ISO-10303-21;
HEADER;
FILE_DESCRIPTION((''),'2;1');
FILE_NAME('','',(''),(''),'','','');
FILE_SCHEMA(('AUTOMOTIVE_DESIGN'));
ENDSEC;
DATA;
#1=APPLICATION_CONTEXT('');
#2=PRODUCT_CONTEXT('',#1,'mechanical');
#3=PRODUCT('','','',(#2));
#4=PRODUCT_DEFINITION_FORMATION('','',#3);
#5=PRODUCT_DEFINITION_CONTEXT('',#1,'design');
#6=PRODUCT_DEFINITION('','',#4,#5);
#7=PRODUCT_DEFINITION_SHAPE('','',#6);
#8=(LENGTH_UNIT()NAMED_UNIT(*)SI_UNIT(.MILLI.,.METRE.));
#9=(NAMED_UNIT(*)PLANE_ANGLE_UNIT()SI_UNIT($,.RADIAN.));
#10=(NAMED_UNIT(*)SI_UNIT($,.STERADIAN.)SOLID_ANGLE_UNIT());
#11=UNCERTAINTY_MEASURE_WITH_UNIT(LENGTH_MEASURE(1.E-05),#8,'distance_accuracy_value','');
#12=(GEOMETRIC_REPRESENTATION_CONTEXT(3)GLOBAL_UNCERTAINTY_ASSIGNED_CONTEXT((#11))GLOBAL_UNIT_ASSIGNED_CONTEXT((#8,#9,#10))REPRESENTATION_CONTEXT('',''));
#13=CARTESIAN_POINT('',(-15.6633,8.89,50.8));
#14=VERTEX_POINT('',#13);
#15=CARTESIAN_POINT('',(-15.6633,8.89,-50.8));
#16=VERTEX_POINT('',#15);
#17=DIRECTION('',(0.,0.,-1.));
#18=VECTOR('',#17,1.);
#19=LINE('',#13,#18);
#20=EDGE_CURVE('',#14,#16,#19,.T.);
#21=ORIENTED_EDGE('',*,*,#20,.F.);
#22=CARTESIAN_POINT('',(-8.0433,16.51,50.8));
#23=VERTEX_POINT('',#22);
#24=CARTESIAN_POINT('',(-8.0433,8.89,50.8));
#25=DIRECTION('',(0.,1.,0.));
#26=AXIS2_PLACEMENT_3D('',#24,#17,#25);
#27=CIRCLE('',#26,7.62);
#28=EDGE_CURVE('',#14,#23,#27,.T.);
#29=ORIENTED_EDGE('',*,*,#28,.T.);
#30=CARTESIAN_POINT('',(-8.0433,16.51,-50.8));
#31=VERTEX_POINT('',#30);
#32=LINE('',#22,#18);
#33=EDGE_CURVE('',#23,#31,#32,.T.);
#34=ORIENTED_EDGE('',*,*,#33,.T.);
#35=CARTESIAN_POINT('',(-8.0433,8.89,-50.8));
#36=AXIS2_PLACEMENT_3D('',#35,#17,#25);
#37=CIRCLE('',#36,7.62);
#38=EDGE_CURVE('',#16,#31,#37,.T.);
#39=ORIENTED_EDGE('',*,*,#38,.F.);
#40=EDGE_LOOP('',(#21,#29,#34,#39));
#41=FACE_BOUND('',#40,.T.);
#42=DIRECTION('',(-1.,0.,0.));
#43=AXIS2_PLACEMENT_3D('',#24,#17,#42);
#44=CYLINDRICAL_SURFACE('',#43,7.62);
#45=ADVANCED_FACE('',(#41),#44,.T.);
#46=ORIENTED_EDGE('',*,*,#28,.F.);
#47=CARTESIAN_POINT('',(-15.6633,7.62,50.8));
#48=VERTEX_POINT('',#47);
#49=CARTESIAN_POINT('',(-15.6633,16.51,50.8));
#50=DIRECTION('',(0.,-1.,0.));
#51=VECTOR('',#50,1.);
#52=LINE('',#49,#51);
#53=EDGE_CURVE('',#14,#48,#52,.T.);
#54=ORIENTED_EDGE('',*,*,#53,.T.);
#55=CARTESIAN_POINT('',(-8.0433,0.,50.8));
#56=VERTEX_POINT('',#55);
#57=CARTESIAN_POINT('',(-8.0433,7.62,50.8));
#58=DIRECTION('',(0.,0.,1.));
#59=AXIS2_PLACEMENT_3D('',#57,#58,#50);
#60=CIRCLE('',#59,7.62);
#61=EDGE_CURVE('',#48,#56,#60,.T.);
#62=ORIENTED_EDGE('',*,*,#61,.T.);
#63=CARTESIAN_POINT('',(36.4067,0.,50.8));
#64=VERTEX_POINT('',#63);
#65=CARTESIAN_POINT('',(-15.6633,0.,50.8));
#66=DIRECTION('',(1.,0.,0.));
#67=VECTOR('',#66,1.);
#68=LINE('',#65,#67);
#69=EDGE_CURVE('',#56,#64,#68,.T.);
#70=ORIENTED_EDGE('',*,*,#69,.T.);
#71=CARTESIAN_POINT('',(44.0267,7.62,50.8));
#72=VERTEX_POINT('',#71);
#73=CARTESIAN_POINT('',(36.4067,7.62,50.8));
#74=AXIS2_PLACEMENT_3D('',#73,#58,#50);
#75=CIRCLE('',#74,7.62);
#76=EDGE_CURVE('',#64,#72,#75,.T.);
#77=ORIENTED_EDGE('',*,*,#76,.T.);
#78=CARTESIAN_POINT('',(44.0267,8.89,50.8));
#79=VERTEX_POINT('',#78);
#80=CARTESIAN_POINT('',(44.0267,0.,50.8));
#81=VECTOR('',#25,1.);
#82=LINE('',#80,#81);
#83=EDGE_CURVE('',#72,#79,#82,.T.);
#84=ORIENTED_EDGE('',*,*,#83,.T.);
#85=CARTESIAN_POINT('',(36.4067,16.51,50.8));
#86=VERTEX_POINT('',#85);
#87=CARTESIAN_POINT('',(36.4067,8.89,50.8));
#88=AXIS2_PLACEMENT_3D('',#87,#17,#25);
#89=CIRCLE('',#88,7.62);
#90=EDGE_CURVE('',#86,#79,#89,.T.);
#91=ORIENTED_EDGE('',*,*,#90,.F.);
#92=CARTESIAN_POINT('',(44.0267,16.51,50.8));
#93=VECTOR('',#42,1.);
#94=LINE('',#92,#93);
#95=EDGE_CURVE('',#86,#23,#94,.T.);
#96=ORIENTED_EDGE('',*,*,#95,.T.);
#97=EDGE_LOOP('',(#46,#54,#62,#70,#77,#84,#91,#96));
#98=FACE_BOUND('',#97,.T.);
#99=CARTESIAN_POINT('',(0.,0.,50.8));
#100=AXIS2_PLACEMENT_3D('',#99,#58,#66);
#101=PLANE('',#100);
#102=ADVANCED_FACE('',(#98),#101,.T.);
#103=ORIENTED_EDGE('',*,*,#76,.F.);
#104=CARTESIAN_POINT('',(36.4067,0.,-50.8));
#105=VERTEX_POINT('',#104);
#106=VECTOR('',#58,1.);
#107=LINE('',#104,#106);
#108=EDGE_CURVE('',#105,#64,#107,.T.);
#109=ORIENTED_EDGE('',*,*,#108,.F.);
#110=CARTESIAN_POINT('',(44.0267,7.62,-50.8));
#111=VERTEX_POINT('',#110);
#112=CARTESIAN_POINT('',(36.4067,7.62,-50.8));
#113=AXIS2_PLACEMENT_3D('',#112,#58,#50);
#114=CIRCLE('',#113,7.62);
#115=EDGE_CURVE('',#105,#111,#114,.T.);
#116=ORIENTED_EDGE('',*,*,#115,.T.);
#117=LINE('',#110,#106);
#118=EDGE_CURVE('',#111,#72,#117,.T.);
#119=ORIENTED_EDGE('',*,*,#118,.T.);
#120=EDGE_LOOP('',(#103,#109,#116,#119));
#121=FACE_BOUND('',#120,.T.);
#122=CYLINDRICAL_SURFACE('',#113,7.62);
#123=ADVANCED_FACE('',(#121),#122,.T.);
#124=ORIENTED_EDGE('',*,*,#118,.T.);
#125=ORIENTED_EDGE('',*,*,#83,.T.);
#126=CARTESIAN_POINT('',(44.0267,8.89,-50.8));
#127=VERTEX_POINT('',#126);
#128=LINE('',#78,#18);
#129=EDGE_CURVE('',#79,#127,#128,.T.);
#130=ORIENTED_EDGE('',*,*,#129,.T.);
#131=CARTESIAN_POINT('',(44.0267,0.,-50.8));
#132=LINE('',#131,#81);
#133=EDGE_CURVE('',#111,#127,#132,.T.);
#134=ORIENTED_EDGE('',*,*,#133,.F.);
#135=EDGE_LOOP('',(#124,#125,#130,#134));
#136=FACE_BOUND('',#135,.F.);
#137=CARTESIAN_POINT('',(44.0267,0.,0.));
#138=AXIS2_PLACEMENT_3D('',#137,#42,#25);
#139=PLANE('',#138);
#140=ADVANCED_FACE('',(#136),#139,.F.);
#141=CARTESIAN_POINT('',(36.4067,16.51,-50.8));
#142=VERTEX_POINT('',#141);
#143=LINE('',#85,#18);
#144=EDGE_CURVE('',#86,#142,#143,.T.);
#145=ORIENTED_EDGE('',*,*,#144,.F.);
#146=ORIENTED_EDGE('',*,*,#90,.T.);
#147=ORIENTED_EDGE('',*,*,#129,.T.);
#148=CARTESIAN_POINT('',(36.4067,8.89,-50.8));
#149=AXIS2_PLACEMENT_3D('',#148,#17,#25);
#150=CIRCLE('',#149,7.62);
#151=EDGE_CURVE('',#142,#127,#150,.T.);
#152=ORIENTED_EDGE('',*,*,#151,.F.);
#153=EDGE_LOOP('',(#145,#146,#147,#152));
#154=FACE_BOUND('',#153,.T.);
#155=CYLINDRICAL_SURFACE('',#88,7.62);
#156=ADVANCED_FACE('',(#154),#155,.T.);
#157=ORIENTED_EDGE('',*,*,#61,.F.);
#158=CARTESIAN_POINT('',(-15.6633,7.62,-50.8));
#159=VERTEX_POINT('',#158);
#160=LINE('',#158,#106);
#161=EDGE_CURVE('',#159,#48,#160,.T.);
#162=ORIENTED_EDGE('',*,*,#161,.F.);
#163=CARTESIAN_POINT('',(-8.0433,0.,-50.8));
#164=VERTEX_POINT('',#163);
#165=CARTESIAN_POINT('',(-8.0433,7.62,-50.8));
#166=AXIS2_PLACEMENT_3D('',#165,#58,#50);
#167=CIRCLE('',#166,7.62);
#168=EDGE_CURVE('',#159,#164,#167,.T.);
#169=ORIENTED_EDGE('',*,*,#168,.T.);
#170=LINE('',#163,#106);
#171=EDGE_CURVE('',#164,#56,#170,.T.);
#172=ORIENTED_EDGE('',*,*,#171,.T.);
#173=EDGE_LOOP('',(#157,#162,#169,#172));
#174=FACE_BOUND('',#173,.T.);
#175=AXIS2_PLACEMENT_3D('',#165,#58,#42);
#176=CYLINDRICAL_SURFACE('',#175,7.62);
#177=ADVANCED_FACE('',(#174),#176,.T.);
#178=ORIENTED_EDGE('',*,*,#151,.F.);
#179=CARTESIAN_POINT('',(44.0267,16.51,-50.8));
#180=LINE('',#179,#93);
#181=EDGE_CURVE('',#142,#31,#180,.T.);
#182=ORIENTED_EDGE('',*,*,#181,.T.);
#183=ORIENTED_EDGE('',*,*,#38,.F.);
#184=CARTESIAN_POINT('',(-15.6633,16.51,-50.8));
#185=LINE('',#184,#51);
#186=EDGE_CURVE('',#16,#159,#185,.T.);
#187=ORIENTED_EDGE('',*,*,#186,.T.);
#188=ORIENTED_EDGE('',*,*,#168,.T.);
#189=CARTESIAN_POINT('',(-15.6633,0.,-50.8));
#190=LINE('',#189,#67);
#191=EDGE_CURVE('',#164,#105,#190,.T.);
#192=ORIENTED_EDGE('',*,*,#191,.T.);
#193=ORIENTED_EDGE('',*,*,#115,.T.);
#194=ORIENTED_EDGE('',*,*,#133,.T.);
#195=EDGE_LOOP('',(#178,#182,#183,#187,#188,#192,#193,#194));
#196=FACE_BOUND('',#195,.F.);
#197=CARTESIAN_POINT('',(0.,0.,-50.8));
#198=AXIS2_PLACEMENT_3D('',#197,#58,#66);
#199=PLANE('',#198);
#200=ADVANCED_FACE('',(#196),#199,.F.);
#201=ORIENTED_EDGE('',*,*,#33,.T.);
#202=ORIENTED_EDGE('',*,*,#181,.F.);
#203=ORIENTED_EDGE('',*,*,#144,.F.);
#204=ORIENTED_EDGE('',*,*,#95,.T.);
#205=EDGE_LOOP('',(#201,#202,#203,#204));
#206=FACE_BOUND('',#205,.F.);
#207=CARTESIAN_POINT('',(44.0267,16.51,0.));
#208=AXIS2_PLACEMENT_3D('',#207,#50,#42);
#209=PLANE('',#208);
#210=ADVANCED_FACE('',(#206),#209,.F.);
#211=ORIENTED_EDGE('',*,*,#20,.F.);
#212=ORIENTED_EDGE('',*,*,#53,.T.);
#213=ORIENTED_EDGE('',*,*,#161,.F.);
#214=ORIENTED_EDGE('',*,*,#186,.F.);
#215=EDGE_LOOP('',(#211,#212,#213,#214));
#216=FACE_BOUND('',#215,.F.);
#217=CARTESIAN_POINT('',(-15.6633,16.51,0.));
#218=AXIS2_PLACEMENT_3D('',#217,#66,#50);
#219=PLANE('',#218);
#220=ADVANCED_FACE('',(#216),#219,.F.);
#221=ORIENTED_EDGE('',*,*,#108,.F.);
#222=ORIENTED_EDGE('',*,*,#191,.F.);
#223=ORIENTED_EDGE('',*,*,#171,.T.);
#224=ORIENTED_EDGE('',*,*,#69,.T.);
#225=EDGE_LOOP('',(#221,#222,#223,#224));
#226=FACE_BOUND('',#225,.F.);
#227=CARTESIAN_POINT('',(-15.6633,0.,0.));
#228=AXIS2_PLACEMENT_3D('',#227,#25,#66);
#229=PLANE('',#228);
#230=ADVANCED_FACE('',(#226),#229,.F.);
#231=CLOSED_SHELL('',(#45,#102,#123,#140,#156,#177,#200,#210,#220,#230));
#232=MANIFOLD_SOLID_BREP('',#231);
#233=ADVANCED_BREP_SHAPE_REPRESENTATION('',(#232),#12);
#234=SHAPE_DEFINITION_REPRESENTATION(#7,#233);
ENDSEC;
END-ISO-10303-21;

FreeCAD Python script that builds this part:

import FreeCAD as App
import Part
import Sketcher
Q = App.Units.Quantity


def edges_at(feature, points):
    """Names of the edges that pass closest to the given points."""
    edges = feature.Shape.Edges
    near = lambda p: min(range(len(edges)), key=lambda i: edges[i].distToShape(Part.Vertex(*p))[0])
    return sorted({f"Edge{near(p) + 1}" for p in points})


def add_polygon(sketch, points):
    """Adds a closed chain of lines whose ends are joined by coincident constraints."""
    first, n = sketch.GeometryCount, len(points)
    for a, b in zip(points, points[1:] + points[:1]):
        sketch.addGeometry(Part.LineSegment(App.Vector(*a, 0), App.Vector(*b, 0)), False)
    for i in range(n):
        sketch.addConstraint(Sketcher.Constraint("Coincident", first + i, 2, first + (i + 1) % n, 1))

doc = App.newDocument("Part")
params = doc.addObject("Spreadsheet::Sheet", "Params")
for row, (alias, value) in enumerate([
    ("sketch1_width", "2.35 in"),
    ("sketch1_height", "0.65 in"),
    ("pad1_length", "4 in"),
    ("fillet_radius", "0.3 in"),
], start=1):
    params.set(f"A{row}", alias)
    params.set(f"B{row}", "=" + value)
    params.setAlias(f"B{row}", alias)

body = doc.addObject("PartDesign::Body", "Body")

sketch1 = doc.addObject("Sketcher::SketchObject", "Sketch")
body.addObject(sketch1)
sketch1.AttachmentSupport = (doc.XY_Plane, [""])
sketch1.MapMode = "FlatFace"
add_polygon(sketch1, [(-16, 17), (-16, 0), (44, 0), (44, 17)])
sketch1.addConstraint([
    Sketcher.Constraint("Vertical", 0),
    Sketcher.Constraint("Horizontal", 1),
    Sketcher.Constraint("Vertical", 2),
    Sketcher.Constraint("Horizontal", 3),
    Sketcher.Constraint("PointOnObject", 0, 2, -1),
    Sketcher.Constraint("DistanceX", 1, 1, 1, 2, Q("2.35 in")),
    Sketcher.Constraint("DistanceY", 0, 2, 0, 1, Q("0.65 in")),
    Sketcher.Constraint("DistanceX", 0, 2, -1, 1, 15.6633),
])
sketch1.setExpression("Constraints[9]", "Params.sketch1_width")
sketch1.setExpression("Constraints[10]", "Params.sketch1_height")
pad1 = doc.addObject("PartDesign::Pad", "Pad")
body.addObject(pad1)
pad1.Profile = sketch1
pad1.setExpression("Length", "Params.pad1_length")
pad1.Midplane = True
doc.recompute()

fillet = doc.addObject("PartDesign::Fillet", "Fillet")
body.addObject(fillet)
fillet.Base = (pad1, edges_at(pad1, [
    (44.027, 16.51, 0),
    (44.027, 0, 0),
    (-15.663, 16.51, 0),
    (-15.663, 0, 0),
]))
fillet.setExpression("Radius", "Params.fillet_radius")

doc.recompute()
